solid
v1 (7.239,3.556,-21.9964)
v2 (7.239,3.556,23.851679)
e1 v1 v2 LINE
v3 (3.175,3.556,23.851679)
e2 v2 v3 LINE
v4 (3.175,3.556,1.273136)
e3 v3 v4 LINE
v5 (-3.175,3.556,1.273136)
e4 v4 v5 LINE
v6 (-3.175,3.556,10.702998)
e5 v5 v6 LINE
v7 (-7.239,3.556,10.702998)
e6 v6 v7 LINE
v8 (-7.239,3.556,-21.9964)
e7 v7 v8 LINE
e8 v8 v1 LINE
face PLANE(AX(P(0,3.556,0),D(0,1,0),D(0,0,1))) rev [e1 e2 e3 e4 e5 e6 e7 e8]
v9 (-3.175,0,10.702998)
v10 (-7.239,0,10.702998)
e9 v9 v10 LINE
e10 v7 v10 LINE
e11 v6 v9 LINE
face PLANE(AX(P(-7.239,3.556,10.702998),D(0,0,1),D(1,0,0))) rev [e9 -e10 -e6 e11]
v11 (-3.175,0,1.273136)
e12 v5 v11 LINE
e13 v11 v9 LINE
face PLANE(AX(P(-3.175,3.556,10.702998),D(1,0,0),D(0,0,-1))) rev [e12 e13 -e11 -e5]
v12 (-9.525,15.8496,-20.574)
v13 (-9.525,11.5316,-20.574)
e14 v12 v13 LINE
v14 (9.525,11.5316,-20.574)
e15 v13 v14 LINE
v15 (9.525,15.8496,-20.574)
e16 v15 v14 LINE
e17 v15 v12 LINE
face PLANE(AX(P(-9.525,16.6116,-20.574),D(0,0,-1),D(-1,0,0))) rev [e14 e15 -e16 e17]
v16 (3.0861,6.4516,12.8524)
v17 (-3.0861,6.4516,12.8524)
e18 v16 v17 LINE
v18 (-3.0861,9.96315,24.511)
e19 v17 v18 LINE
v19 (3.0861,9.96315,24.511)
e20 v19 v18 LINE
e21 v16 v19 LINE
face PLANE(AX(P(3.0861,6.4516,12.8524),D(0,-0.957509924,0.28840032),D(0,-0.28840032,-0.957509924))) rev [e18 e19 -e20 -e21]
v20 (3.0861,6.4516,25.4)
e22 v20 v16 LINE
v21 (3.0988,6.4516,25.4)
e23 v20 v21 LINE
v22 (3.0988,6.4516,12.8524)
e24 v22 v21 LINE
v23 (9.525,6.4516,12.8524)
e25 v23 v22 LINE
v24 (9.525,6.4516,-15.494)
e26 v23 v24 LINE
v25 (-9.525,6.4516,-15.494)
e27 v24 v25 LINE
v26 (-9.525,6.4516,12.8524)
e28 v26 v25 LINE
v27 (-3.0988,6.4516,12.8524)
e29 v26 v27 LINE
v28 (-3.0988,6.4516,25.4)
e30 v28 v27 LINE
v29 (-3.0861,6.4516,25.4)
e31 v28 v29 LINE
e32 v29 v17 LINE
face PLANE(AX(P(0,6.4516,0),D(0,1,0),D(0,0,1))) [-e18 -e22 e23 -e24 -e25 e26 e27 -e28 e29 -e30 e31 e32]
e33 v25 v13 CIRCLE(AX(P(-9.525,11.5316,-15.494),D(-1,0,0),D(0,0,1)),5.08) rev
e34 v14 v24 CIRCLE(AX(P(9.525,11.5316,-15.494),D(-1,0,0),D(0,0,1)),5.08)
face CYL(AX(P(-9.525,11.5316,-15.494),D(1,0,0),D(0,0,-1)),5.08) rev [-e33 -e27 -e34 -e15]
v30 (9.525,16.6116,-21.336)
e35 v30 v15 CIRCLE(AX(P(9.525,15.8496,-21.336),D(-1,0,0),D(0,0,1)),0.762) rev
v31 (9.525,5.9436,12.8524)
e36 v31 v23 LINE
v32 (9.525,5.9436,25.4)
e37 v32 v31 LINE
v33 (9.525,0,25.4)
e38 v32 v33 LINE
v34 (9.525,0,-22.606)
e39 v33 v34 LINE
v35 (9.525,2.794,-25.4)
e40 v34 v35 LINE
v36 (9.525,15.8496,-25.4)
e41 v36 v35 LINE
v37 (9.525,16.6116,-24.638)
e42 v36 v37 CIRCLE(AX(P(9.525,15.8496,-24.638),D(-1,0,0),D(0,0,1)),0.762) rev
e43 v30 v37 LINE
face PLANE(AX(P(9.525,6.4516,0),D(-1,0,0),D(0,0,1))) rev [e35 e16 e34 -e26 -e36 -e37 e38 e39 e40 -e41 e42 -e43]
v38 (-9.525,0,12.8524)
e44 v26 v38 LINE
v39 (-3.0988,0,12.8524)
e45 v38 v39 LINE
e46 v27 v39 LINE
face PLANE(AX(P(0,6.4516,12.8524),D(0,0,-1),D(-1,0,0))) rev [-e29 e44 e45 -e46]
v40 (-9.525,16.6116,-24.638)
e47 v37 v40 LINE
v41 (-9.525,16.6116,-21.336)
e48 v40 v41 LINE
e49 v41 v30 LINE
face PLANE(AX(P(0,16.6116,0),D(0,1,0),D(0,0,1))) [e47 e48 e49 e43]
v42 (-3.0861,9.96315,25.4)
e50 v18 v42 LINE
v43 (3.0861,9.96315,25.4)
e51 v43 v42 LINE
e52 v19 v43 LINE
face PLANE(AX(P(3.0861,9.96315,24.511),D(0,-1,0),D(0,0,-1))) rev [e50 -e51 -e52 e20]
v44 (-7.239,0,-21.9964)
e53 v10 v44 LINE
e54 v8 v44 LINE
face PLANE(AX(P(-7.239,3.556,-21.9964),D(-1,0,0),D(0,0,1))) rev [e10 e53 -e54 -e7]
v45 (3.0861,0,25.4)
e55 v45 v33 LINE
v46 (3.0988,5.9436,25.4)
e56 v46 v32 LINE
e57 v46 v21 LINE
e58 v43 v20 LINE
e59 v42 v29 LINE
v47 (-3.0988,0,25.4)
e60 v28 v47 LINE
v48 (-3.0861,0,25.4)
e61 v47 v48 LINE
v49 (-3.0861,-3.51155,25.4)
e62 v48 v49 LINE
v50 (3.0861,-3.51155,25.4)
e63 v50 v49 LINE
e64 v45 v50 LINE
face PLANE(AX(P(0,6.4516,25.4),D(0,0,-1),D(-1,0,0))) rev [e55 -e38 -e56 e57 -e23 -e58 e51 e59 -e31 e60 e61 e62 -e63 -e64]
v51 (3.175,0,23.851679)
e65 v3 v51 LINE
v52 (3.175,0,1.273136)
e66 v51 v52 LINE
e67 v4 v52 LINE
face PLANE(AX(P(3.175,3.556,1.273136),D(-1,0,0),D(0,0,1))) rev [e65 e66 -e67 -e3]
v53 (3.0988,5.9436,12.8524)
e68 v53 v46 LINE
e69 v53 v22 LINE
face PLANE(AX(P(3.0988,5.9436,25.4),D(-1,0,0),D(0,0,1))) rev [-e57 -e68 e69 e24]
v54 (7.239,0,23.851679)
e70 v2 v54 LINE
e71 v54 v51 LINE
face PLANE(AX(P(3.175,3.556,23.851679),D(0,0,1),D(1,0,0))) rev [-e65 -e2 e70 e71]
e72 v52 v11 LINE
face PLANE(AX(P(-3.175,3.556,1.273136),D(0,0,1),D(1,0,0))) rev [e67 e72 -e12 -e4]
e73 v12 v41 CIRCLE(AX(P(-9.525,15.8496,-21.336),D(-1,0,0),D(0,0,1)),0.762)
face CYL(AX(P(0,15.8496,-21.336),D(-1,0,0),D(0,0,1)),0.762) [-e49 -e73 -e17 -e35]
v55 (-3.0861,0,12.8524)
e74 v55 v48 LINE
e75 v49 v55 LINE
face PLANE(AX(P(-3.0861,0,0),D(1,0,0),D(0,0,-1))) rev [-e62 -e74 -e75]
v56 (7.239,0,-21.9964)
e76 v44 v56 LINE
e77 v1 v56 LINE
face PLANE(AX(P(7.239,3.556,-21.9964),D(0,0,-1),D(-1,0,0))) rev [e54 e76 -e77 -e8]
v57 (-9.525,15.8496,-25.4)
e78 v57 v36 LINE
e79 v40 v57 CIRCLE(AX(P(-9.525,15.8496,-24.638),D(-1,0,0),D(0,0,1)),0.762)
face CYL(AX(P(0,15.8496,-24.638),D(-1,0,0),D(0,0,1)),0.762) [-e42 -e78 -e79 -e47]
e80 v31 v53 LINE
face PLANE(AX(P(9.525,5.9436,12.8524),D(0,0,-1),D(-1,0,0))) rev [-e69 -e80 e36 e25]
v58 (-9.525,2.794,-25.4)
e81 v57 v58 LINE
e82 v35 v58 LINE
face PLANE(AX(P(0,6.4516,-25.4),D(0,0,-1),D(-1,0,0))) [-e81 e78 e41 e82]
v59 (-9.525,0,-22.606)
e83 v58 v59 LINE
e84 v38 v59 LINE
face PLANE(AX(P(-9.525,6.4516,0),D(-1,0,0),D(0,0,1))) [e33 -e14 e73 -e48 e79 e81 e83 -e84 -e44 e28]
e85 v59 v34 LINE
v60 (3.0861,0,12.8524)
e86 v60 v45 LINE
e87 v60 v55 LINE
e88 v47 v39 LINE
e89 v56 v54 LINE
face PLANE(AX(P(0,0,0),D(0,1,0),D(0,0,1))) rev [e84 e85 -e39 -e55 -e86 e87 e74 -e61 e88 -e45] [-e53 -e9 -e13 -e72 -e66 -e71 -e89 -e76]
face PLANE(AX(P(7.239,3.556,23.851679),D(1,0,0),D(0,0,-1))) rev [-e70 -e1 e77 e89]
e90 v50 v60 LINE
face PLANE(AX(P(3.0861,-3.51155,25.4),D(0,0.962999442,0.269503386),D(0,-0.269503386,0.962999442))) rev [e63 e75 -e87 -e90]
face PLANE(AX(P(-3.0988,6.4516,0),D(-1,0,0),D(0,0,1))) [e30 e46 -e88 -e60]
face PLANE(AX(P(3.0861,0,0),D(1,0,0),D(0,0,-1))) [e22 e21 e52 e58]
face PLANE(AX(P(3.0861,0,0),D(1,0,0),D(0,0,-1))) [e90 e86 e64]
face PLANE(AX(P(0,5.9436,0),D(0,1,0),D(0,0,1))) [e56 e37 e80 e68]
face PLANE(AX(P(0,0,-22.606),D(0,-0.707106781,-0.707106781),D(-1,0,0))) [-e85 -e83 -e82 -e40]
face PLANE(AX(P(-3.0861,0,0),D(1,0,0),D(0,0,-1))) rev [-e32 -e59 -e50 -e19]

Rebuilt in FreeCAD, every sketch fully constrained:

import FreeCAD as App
import Part
import Sketcher
Q = App.Units.Quantity


def edges_at(feature, points):
    """Names of the edges that pass closest to the given points."""
    edges = feature.Shape.Edges
    near = lambda p: min(range(len(edges)), key=lambda i: edges[i].distToShape(Part.Vertex(*p))[0])
    return sorted({f"Edge{near(p) + 1}" for p in points})


def add_polygon(sketch, points):
    """Adds a closed chain of lines whose ends are joined by coincident constraints."""
    first, n = sketch.GeometryCount, len(points)
    for a, b in zip(points, points[1:] + points[:1]):
        sketch.addGeometry(Part.LineSegment(App.Vector(*a, 0), App.Vector(*b, 0)), False)
    for i in range(n):
        sketch.addConstraint(Sketcher.Constraint("Coincident", first + i, 2, first + (i + 1) % n, 1))

doc = App.newDocument("Part")
body = doc.addObject("PartDesign::Body", "Body")

# Sketch on XZ plane
sketch1 = doc.addObject("Sketcher::SketchObject", "Sketch")
body.addObject(sketch1)
sketch1.AttachmentSupport = (doc.XZ_Plane, [""])
sketch1.MapMode = "FlatFace"
add_polygon(sketch1, [(-3, 13), (-3, 25), (10, 25), (10, -25), (-10, -25), (-10, 13)])  # lines 0-5
sketch1.addConstraint([
    Sketcher.Constraint("Vertical", 0),
    Sketcher.Constraint("Horizontal", 1),
    Sketcher.Constraint("Vertical", 2),
    Sketcher.Constraint("Horizontal", 3),
    Sketcher.Constraint("Vertical", 4),
    Sketcher.Constraint("Horizontal", 5),
    Sketcher.Constraint("Symmetric", 1, 2, 3, 2, -1, 1),
    Sketcher.Constraint("DistanceY", 2, 2, 2, 1, Q("2 in")),
    Sketcher.Constraint("DistanceX", 3, 2, 3, 1, Q("0.75 in")),
    Sketcher.Constraint("DistanceX", 1, 1, 1, 2, Q("0.497 in")),
    Sketcher.Constraint("DistanceY", 0, 1, 0, 2, Q("0.494 in")),
])
pad1 = doc.addObject("PartDesign::Pad", "Pad")
body.addObject(pad1)
pad1.Profile = sketch1
pad1.Length = Q("0.254 in")
pad1.Reversed = True

# Sketch on XZ plane
sketch2 = doc.addObject("Sketcher::SketchObject", "Sketch001")
body.addObject(sketch2)
sketch2.AttachmentSupport = (doc.XZ_Plane, [""])
sketch2.MapMode = "FlatFace"
sketch2.AttachmentOffset = App.Placement(App.Vector(0, 0, -0.254 * 25.4), App.Rotation())
add_polygon(sketch2, [(-9.5, -25.4), (-9.5, -20.6), (9.5, -20.6), (9.5, -25.4)])  # lines 0-3
sketch2.addConstraint([
    Sketcher.Constraint("Vertical", 0),
    Sketcher.Constraint("Horizontal", 1),
    Sketcher.Constraint("Vertical", 2),
    Sketcher.Constraint("Horizontal", 3),
    Sketcher.Constraint("DistanceY", 2, 2, -1, 1, Q("1 in")),
    Sketcher.Constraint("DistanceX", 1, 1, 1, 2, Q("0.75 in")),
    Sketcher.Constraint("DistanceY", 0, 1, 0, 2, Q("0.19 in")),
    Sketcher.Constraint("DistanceX", 0, 2, -1, 1, Q("0.375 in")),
])
pad2 = doc.addObject("PartDesign::Pad", "Pad001")
body.addObject(pad2)
pad2.Profile = sketch2
pad2.Length = Q("0.4 in")
pad2.Reversed = True
doc.recompute()

fillet = doc.addObject("PartDesign::Fillet", "Fillet")
body.addObject(fillet)
fillet.Base = (pad2, edges_at(pad2, [(0, 6.452, -20.574)]))
fillet.Radius = Q("0.2 in")
doc.recompute()

fillet2 = doc.addObject("PartDesign::Fillet", "Fillet001")
body.addObject(fillet2)
fillet2.Base = (fillet, edges_at(fillet, [(0, 16.612, -20.574), (0, 16.612, -25.4)]))
fillet2.Radius = Q("0.03 in")

# Sketch on XZ plane
sketch3 = doc.addObject("Sketcher::SketchObject", "Sketch002")
body.addObject(sketch3)
sketch3.AttachmentSupport = (doc.XZ_Plane, [""])
sketch3.MapMode = "FlatFace"
sketch3.AttachmentOffset = App.Placement(App.Vector(0, 0, -0.254 * 25.4), App.Rotation())
add_polygon(sketch3, [(3, 13), (3, 25), (10, 25), (10, 13)])  # lines 0-3
sketch3.addConstraint([
    Sketcher.Constraint("Vertical", 0),
    Sketcher.Constraint("Horizontal", 1),
    Sketcher.Constraint("Vertical", 2),
    Sketcher.Constraint("Horizontal", 3),
    Sketcher.Constraint("DistanceY", -1, 1, 0, 2, Q("1 in")),
    Sketcher.Constraint("DistanceX", 1, 1, 1, 2, Q("0.253 in")),
    Sketcher.Constraint("DistanceY", 0, 1, 0, 2, Q("0.494 in")),
    Sketcher.Constraint("DistanceX", -1, 1, 0, 2, Q("0.122 in")),
])
pocket1 = doc.addObject("PartDesign::Pocket", "Pocket")
body.addObject(pocket1)
pocket1.Profile = sketch3
pocket1.Length = Q("0.02 in")
pocket1.Reversed = True

# Sketch on YZ plane
sketch4 = doc.addObject("Sketcher::SketchObject", "Sketch003")
body.addObject(sketch4)
sketch4.AttachmentSupport = (doc.YZ_Plane, [""])
sketch4.MapMode = "FlatFace"
add_polygon(sketch4, [(6.5, 25.4), (6.5, 12.9), (10, 24.5), (10, 25.4)])  # lines 0-3
add_polygon(sketch4, [(0, 25.4), (-3.5, 25.4), (0, 12.9)])  # lines 4-6
sketch4.addConstraint([
    Sketcher.Constraint("Vertical", 0),
    Sketcher.Constraint("Vertical", 2),
    Sketcher.Constraint("Horizontal", 3),
    Sketcher.Constraint("Horizontal", 4),
    Sketcher.Constraint("Vertical", 6),
    Sketcher.Constraint("PointOnObject", 5, 2, -2),
    Sketcher.Constraint("Horizontal", 3, 2, 4, 2),
    Sketcher.Constraint("Horizontal", 0, 2, 5, 2),
    Sketcher.Constraint("Equal", 3, 4),
    Sketcher.Constraint("DistanceY", -1, 1, 2, 2, Q("1 in")),
    Sketcher.Constraint("DistanceY", 0, 2, 0, 1, Q("0.494 in")),
    Sketcher.Constraint("DistanceY", 2, 1, 2, 2, Q("0.035 in")),
    Sketcher.Constraint("DistanceX", -1, 1, 0, 2, Q("0.254 in")),
    Sketcher.Constraint("DistanceX", 4, 2, 2, 2, Q("0.5305 in")),
])
pad3 = doc.addObject("PartDesign::Pad", "Pad002")
body.addObject(pad3)
pad3.Profile = sketch4
pad3.Length = Q("0.243 in")
pad3.Midplane = True
doc.recompute()

chamfer = doc.addObject("PartDesign::Chamfer", "Chamfer")
body.addObject(chamfer)
chamfer.Base = (pad3, edges_at(pad3, [(0, 0, -25.4)]))
chamfer.Size = Q("0.11 in")

# Sketch on XZ plane
sketch5 = doc.addObject("Sketcher::SketchObject", "Sketch004")
body.addObject(sketch5)
sketch5.AttachmentSupport = (doc.XZ_Plane, [""])
sketch5.MapMode = "FlatFace"
add_polygon(sketch5, [(7.2, 23.9), (3.2, 23.9), (3.2, 1.3), (-3.2, 1.3), (-3.2, 10.7), (-7.2, 10.7), (-7.2, -22), (7.2, -22)])  # lines 0-7
sketch5.addConstraint([
    Sketcher.Constraint("Horizontal", 0),
    Sketcher.Constraint("Vertical", 1),
    Sketcher.Constraint("Horizontal", 2),
    Sketcher.Constraint("Vertical", 3),
    Sketcher.Constraint("Horizontal", 4),
    Sketcher.Constraint("Vertical", 5),
    Sketcher.Constraint("Horizontal", 6),
    Sketcher.Constraint("Vertical", 7),
    Sketcher.Constraint("Equal", 0, 4),
    Sketcher.Constraint("DistanceX", 0, 2, 0, 1, Q("0.16 in")),
    Sketcher.Constraint("DistanceX", 2, 2, 2, 1, Q("0.25 in")),
    Sketcher.Constraint("DistanceX", -1, 1, 0, 2, Q("0.125 in")),
    Sketcher.Constraint("DistanceY", 5, 2, -1, 1, Q("0.866 in")),
    Sketcher.Constraint("DistanceY", 5, 2, 5, 1, Q("32.699398 mm")),
    Sketcher.Constraint("DistanceY", 7, 1, 7, 2, Q("45.848079 mm")),
    Sketcher.Constraint("DistanceY", 1, 2, 1, 1, Q("22.578543 mm")),
])
pocket2 = doc.addObject("PartDesign::Pocket", "Pocket001")
body.addObject(pocket2)
pocket2.Profile = sketch5
pocket2.Length = Q("0.14 in")

doc.recompute()
